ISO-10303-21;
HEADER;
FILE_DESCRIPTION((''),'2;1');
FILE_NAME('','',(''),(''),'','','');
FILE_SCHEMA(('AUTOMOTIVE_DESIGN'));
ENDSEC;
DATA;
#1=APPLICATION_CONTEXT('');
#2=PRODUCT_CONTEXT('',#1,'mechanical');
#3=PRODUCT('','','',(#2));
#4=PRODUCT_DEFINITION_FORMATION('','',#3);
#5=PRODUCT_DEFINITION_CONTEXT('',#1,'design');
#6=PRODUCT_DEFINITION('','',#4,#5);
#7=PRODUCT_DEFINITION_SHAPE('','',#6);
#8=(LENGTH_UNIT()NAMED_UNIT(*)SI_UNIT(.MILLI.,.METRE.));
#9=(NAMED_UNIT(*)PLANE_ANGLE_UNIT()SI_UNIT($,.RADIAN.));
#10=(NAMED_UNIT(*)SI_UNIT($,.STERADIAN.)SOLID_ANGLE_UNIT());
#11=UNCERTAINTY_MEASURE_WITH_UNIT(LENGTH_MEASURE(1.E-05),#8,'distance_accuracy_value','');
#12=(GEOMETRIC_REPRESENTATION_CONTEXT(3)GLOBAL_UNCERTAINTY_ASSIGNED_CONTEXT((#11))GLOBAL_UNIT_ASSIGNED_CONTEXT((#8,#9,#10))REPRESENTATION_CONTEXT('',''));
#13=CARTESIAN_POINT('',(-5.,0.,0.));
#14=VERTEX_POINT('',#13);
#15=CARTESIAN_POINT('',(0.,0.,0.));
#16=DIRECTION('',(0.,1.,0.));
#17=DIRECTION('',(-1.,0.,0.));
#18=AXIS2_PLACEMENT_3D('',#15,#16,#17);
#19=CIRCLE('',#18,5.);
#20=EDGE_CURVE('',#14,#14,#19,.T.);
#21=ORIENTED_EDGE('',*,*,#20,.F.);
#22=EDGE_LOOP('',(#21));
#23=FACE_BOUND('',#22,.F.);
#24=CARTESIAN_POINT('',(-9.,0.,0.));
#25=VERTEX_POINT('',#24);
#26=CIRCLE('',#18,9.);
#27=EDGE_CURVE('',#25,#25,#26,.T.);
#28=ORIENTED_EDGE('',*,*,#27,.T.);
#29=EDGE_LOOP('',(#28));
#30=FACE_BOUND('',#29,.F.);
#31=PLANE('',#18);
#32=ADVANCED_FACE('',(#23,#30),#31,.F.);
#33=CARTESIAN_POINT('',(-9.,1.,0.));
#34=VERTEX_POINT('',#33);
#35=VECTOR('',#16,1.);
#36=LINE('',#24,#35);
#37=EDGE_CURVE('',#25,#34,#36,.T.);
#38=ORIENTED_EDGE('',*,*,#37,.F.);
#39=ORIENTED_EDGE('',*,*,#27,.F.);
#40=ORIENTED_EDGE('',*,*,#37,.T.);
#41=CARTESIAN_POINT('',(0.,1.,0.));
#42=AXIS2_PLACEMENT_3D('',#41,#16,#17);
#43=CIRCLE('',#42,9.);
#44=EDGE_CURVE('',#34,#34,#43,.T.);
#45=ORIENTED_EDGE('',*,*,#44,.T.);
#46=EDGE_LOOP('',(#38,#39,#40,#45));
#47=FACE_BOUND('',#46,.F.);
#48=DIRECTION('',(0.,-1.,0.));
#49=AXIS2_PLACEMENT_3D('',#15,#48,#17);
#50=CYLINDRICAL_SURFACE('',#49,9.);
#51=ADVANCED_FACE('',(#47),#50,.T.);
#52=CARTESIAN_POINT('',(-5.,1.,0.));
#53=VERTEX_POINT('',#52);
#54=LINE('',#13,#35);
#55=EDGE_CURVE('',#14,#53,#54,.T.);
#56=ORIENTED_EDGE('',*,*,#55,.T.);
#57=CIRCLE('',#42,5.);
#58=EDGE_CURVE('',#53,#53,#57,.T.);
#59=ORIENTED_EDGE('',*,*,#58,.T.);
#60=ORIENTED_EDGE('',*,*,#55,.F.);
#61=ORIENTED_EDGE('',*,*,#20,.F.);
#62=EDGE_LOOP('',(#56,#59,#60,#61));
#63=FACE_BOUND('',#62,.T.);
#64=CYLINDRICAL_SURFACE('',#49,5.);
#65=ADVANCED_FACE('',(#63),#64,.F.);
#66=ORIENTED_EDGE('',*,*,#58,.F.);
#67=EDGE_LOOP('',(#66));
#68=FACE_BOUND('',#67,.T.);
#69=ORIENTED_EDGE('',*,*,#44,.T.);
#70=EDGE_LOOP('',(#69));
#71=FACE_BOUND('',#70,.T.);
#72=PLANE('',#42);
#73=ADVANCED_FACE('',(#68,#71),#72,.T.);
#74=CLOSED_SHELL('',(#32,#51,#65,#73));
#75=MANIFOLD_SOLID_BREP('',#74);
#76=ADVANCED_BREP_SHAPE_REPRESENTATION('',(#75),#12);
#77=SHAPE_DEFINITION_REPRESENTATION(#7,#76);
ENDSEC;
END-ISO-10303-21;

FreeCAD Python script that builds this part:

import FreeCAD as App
import Part
import Sketcher

V = App.Vector
Q = App.Units.Quantity

doc = App.newDocument("Part")
params = doc.addObject("Spreadsheet::Sheet", "Params")
for row, (alias, value) in enumerate([
    ("sketch1_diameter", "18 mm"),
    ("sketch1_diameter2", "10 mm"),
    ("pad1_length", "1 mm"),
], start=1):
    params.set(f"A{row}", alias)
    params.set(f"B{row}", "=" + value)
    params.setAlias(f"B{row}", alias)

body = doc.addObject("PartDesign::Body", "Body")

sketch1 = body.newObject("Sketcher::SketchObject", "Sketch")
sketch1.AttachmentSupport = (doc.getObject("XZ_Plane"), [""])
sketch1.MapMode = "FlatFace"
sketch1.addGeometry(Part.Circle(V(0, 0, 0), V(0, 0, 1), 9), False)
sketch1.addGeometry(Part.Circle(V(0, 0, 0), V(0, 0, 1), 5), False)
sketch1.addConstraint(Sketcher.Constraint("Coincident", 0, 3, -1, 1))
sketch1.addConstraint(Sketcher.Constraint("Coincident", 1, 3, -1, 1))
sketch1.addConstraint(Sketcher.Constraint("Diameter", 0, Q("18 mm")))
sketch1.addConstraint(Sketcher.Constraint("Diameter", 1, Q("10 mm")))
sketch1.setExpression("Constraints[2]", "Params.sketch1_diameter")
sketch1.setExpression("Constraints[3]", "Params.sketch1_diameter2")
pad1 = body.newObject("PartDesign::Pad", "Pad")
pad1.Profile = sketch1
pad1.setExpression("Length", "Params.pad1_length")
pad1.Reversed = True

doc.recompute()
